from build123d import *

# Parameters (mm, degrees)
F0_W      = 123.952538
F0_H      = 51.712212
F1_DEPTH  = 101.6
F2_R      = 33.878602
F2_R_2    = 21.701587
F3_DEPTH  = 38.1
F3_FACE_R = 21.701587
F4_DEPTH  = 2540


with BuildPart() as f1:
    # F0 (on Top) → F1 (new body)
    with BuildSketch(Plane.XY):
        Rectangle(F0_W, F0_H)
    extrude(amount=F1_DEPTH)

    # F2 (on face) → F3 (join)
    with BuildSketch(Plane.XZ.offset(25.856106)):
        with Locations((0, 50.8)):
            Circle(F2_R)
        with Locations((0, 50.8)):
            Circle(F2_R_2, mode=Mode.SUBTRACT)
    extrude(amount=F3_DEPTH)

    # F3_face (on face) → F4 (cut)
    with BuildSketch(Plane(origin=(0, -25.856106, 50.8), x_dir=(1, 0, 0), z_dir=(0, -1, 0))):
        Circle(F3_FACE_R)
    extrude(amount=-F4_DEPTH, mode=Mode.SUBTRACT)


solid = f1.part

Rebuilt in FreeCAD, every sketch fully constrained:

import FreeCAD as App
import Part
import Sketcher

V = App.Vector
Q = App.Units.Quantity


def add_polygon(sketch, points):
    """Adds a closed chain of lines whose ends are joined by coincident constraints."""
    first, n = sketch.GeometryCount, len(points)
    for a, b in zip(points, points[1:] + points[:1]):
        sketch.addGeometry(Part.LineSegment(App.Vector(*a, 0), App.Vector(*b, 0)), False)
    for i in range(n):
        sketch.addConstraint(Sketcher.Constraint("Coincident", first + i, 2, first + (i + 1) % n, 1))

doc = App.newDocument("Part")
body = doc.addObject("PartDesign::Body", "Body")

sketch1 = body.newObject("Sketcher::SketchObject", "Sketch")
sketch1.AttachmentSupport = (doc.getObject("XY_Plane"), [""])
sketch1.MapMode = "FlatFace"
add_polygon(sketch1, [(-62, 26), (-62, -26), (62, -26), (62, 26)])
sketch1.addConstraint([
    Sketcher.Constraint("Vertical", 0),
    Sketcher.Constraint("Horizontal", 1),
    Sketcher.Constraint("Vertical", 2),
    Sketcher.Constraint("Horizontal", 3),
    Sketcher.Constraint("Symmetric", 0, 2, 2, 2, -1, 1),
    Sketcher.Constraint("DistanceX", 1, 1, 1, 2, 123.952538),
    Sketcher.Constraint("DistanceY", 0, 2, 0, 1, 51.712212),
])
pad1 = body.newObject("PartDesign::Pad", "Pad")
pad1.Profile = sketch1
pad1.Length = Q("4 in")

sketch2 = body.newObject("Sketcher::SketchObject", "Sketch001")
sketch2.AttachmentSupport = (doc.getObject("XZ_Plane"), [""])
sketch2.MapMode = "FlatFace"
sketch2.AttachmentOffset = App.Placement(V(0, 0, 25.856106), App.Rotation())
sketch2.addGeometry([
    Part.Circle(V(0, 51, 0), V(0, 0, 1), 34),
    Part.Circle(V(0, 51, 0), V(0, 0, 1), 22),
], False)
sketch2.addConstraint([
    Sketcher.Constraint("Coincident", 1, 3, 0, 3),
    Sketcher.Constraint("PointOnObject", 0, 3, -2),
    Sketcher.Constraint("DistanceY", -1, 1, 0, 3, Q("2 in")),
    Sketcher.Constraint("Diameter", 0, 67.757204),
    Sketcher.Constraint("Diameter", 1, 43.403174),
])
pad2 = body.newObject("PartDesign::Pad", "Pad001")
pad2.Profile = sketch2
pad2.Length = Q("1.5 in")

sketch3 = body.newObject("Sketcher::SketchObject", "Sketch002")
sketch3.AttachmentSupport = (doc.getObject("XZ_Plane"), [""])
sketch3.MapMode = "FlatFace"
sketch3.AttachmentOffset = App.Placement(V(0, 0, 25.856106), App.Rotation())
sketch3.addGeometry(Part.Circle(V(0, 51, 0), V(0, 0, 1), 22), False)
sketch3.addConstraint([
    Sketcher.Constraint("PointOnObject", 0, 3, -2),
    Sketcher.Constraint("DistanceY", -1, 1, 0, 3, Q("2 in")),
    Sketcher.Constraint("Diameter", 0, 43.403174),
])
pocket1 = body.newObject("PartDesign::Pocket", "Pocket")
pocket1.Profile = sketch3
pocket1.Length = Q("100 in")

doc.recompute()
